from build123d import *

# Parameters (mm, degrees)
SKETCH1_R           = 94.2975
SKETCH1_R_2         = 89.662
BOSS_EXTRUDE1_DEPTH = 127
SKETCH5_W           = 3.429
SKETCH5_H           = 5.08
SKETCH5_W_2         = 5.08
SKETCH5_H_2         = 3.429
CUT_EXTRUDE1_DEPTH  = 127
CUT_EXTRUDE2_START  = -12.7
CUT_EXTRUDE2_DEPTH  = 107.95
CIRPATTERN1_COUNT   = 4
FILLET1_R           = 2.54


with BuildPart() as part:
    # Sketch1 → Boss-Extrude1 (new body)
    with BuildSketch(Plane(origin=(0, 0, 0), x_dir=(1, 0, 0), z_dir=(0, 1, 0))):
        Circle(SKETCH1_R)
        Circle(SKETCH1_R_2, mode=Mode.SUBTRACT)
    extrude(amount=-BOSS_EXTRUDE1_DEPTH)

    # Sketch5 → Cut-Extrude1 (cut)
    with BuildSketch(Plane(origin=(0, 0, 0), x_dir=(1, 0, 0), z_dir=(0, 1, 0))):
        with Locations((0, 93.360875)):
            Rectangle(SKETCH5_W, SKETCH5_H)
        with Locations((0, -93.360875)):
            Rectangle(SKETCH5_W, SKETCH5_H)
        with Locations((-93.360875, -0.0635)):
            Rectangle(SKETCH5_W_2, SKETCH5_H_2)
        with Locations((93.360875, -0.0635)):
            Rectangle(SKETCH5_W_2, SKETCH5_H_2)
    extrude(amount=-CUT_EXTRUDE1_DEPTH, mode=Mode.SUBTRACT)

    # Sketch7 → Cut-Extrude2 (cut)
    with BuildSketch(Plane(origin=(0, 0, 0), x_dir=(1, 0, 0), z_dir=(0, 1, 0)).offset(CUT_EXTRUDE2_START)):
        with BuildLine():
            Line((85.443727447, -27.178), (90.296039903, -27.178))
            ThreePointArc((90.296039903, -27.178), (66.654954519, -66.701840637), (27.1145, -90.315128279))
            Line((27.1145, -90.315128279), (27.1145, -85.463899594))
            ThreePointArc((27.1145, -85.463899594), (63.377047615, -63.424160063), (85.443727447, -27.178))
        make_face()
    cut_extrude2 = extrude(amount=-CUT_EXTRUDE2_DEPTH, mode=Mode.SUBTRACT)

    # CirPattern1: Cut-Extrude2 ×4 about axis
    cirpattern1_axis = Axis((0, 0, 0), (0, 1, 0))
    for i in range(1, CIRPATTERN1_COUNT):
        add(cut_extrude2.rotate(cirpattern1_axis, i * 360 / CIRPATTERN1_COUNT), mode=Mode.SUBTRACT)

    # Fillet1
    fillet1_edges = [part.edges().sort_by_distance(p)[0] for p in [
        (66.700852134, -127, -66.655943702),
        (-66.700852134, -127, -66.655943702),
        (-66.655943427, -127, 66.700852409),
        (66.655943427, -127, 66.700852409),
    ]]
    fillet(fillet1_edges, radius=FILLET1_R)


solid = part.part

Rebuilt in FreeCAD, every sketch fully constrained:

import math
import FreeCAD as App
import Part
import Sketcher
from FreeCAD import Vector
Q = App.Units.Quantity


def edges_at(feature, points):
    """Names of the edges that pass closest to the given points."""
    edges = feature.Shape.Edges
    near = lambda p: min(range(len(edges)), key=lambda i: edges[i].distToShape(Part.Vertex(*p))[0])
    return sorted({f"Edge{near(p) + 1}" for p in points})

doc = App.newDocument("Part")
params = doc.addObject("Spreadsheet::Sheet", "Params")
for row, (alias, value) in enumerate([
    ("sketch1_diameter", "7.06 in"),
    ("sketch1_diameter2", "7.425 in"),
    ("pad1_length", "5 in"),
    ("sketch2_width", "0.2 in"),
    ("sketch2_width2", "0.135 in"),
    ("pocket1_length", "5 in"),
    ("sketch3_radius", "3.53 in"),
    ("pocket2_length", "4.25 in"),
    ("fillet_radius", "0.1 in"),
], start=1):
    params.set(f"A{row}", alias)
    params.set(f"B{row}", "=" + value)
    params.setAlias(f"B{row}", alias)

body = doc.addObject("PartDesign::Body", "Body")

# Sketch on XZ plane
sketch1 = doc.addObject("Sketcher::SketchObject", "Sketch")
body.addObject(sketch1)
sketch1.AttachmentSupport = (doc.XZ_Plane, [""])
sketch1.MapMode = "FlatFace"
sketch1.addGeometry([
    Part.Circle(Vector(0, 0, 0), Vector(0, 0, 1), 94),
    Part.Circle(Vector(0, 0, 0), Vector(0, 0, 1), 90),
], False)
sketch1.addConstraint([
    Sketcher.Constraint("Coincident", 0, 3, -1, 1),
    Sketcher.Constraint("Coincident", 1, 3, -1, 1),
    Sketcher.Constraint("Diameter", 1, Q("7.06 in")),
    Sketcher.Constraint("Diameter", 0, Q("7.425 in")),
])
sketch1.setExpression("Constraints[2]", "Params.sketch1_diameter")
sketch1.setExpression("Constraints[3]", "Params.sketch1_diameter2")
pad1 = doc.addObject("PartDesign::Pad", "Pad")
body.addObject(pad1)
pad1.Profile = sketch1
pad1.setExpression("Length", "Params.pad1_length")

# Sketch on XZ plane
sketch2 = doc.addObject("Sketcher::SketchObject", "Sketch001")
body.addObject(sketch2)
sketch2.AttachmentSupport = (doc.XZ_Plane, [""])
sketch2.MapMode = "FlatFace"
sketch2.addGeometry([
    Part.LineSegment(Vector(-1.7, -95.9, 0), Vector(-1.7, -90.8, 0)),  # 0
    Part.LineSegment(Vector(-1.7, -90.8, 0), Vector(1.7, -90.8, 0)),  # 1
    Part.LineSegment(Vector(1.7, -90.8, 0), Vector(1.7, -95.9, 0)),  # 2
    Part.LineSegment(Vector(1.7, -95.9, 0), Vector(-1.7, -95.9, 0)),  # 3
    Part.LineSegment(Vector(-1.7, 90.8, 0), Vector(-1.7, 95.9, 0)),  # 4
    Part.LineSegment(Vector(-1.7, 95.9, 0), Vector(1.7, 95.9, 0)),  # 5
    Part.LineSegment(Vector(1.7, 95.9, 0), Vector(1.7, 90.8, 0)),  # 6
    Part.LineSegment(Vector(1.7, 90.8, 0), Vector(-1.7, 90.8, 0)),  # 7
    Part.LineSegment(Vector(-95.9, -1.7, 0), Vector(-95.9, 1.8, 0)),  # 8
    Part.LineSegment(Vector(-95.9, 1.8, 0), Vector(-90.8, 1.8, 0)),  # 9
    Part.LineSegment(Vector(-90.8, 1.8, 0), Vector(-90.8, -1.7, 0)),  # 10
    Part.LineSegment(Vector(-90.8, -1.7, 0), Vector(-95.9, -1.7, 0)),  # 11
    Part.LineSegment(Vector(90.8, -1.7, 0), Vector(90.8, 1.8, 0)),  # 12
    Part.LineSegment(Vector(90.8, 1.8, 0), Vector(95.9, 1.8, 0)),  # 13
    Part.LineSegment(Vector(95.9, 1.8, 0), Vector(95.9, -1.7, 0)),  # 14
    Part.LineSegment(Vector(95.9, -1.7, 0), Vector(90.8, -1.7, 0)),  # 15
], False)
sketch2.addConstraint([
    Sketcher.Constraint("Coincident", 0, 2, 1, 1),
    Sketcher.Constraint("Coincident", 1, 2, 2, 1),
    Sketcher.Constraint("Coincident", 2, 2, 3, 1),
    Sketcher.Constraint("Coincident", 3, 2, 0, 1),
    Sketcher.Constraint("Coincident", 4, 2, 5, 1),
    Sketcher.Constraint("Coincident", 5, 2, 6, 1),
    Sketcher.Constraint("Coincident", 6, 2, 7, 1),
    Sketcher.Constraint("Coincident", 7, 2, 4, 1),
    Sketcher.Constraint("Coincident", 8, 2, 9, 1),
    Sketcher.Constraint("Coincident", 9, 2, 10, 1),
    Sketcher.Constraint("Coincident", 10, 2, 11, 1),
    Sketcher.Constraint("Coincident", 11, 2, 8, 1),
    Sketcher.Constraint("Coincident", 12, 2, 13, 1),
    Sketcher.Constraint("Coincident", 13, 2, 14, 1),
    Sketcher.Constraint("Coincident", 14, 2, 15, 1),
    Sketcher.Constraint("Coincident", 15, 2, 12, 1),
    Sketcher.Constraint("Vertical", 0),
    Sketcher.Constraint("Horizontal", 1),
    Sketcher.Constraint("Vertical", 2),
    Sketcher.Constraint("Horizontal", 3),
    Sketcher.Constraint("Vertical", 4),
    Sketcher.Constraint("Horizontal", 5),
    Sketcher.Constraint("Vertical", 6),
    Sketcher.Constraint("Horizontal", 7),
    Sketcher.Constraint("Vertical", 8),
    Sketcher.Constraint("Horizontal", 9),
    Sketcher.Constraint("Vertical", 10),
    Sketcher.Constraint("Horizontal", 11),
    Sketcher.Constraint("Vertical", 12),
    Sketcher.Constraint("Horizontal", 13),
    Sketcher.Constraint("Vertical", 14),
    Sketcher.Constraint("Horizontal", 15),
    Sketcher.Constraint("Symmetric", 2, 2, 4, 2, -1, 1),
    Sketcher.Constraint("Symmetric", 0, 2, 6, 2, -1, 1),
    Sketcher.Constraint("Symmetric", 9, 2, 12, 2, -2),
    Sketcher.Constraint("Symmetric", 11, 2, 14, 2, -2),
    Sketcher.Constraint("Vertical", 3, 2, 4, 2),
    Sketcher.Constraint("Equal", 15, 0),
    Sketcher.Constraint("Equal", 7, 8),
    Sketcher.Constraint("DistanceX", 9, 1, 9, 2, Q("0.2 in")),
    Sketcher.Constraint("DistanceX", 1, 1, 1, 2, Q("0.135 in")),
    Sketcher.Constraint("DistanceY", -1, 1, 8, 2, Q("0.07 in")),
    Sketcher.Constraint("DistanceY", 10, 2, 7, 2, Q("3.640625 in")),
    Sketcher.Constraint("DistanceX", 8, 2, -1, 1, 95.900875),
])
sketch2.setExpression("Constraints[39]", "Params.sketch2_width")
sketch2.setExpression("Constraints[40]", "Params.sketch2_width2")
pocket1 = doc.addObject("PartDesign::Pocket", "Pocket")
body.addObject(pocket1)
pocket1.Profile = sketch2
pocket1.setExpression("Length", "Params.pocket1_length")
pocket1.Reversed = True

# Sketch on XZ plane
sketch3 = doc.addObject("Sketcher::SketchObject", "Sketch002")
body.addObject(sketch3)
sketch3.AttachmentSupport = (doc.XZ_Plane, [""])
sketch3.MapMode = "FlatFace"
sketch3.AttachmentOffset = App.Placement(Vector(0, 0, 0.5 * 25.4), App.Rotation())
sketch3.addGeometry([
    Part.LineSegment(Vector(90.3, 27.2, 0), Vector(85.4, 27.2, 0)),
    Part.ArcOfCircle(Part.Circle(Vector(0, 0, 0), Vector(0, 0, 1), 89.7), math.radians(18), math.radians(72)),
    Part.LineSegment(Vector(27.1, 85.5, 0), Vector(27.1, 90.3, 0)),
    Part.ArcOfCircle(Part.Circle(Vector(0, 0, 0), Vector(0, 0, 1), 94.3), math.radians(17), math.radians(73)),
], False)
sketch3.addConstraint([
    Sketcher.Constraint("Coincident", 0, 2, 1, 1),
    Sketcher.Constraint("Coincident", 1, 2, 2, 1),
    Sketcher.Constraint("Coincident", 2, 2, 3, 2),
    Sketcher.Constraint("Coincident", 3, 1, 0, 1),
    Sketcher.Constraint("Horizontal", 0),
    Sketcher.Constraint("Vertical", 2),
    Sketcher.Constraint("Coincident", 1, 3, -1, 1),
    Sketcher.Constraint("Coincident", 3, 3, -1, 1),
    Sketcher.Constraint("Radius", 1, Q("3.53 in")),
    Sketcher.Constraint("Radius", 3, Q("3.7125 in")),
    Sketcher.Constraint("DistanceY", -1, 1, 0, 2, Q("1.07 in")),
    Sketcher.Constraint("DistanceX", -1, 1, 1, 2, Q("1.0675 in")),
])
sketch3.setExpression("Constraints[8]", "Params.sketch3_radius")
pocket2 = doc.addObject("PartDesign::Pocket", "Pocket001")
body.addObject(pocket2)
pocket2.Profile = sketch3
pocket2.setExpression("Length", "Params.pocket2_length")
pocket2.Reversed = True
doc.recompute()

polarpattern = doc.addObject("PartDesign::PolarPattern", "PolarPattern")
body.addObject(polarpattern)
polarpattern.Originals = [pocket2]
polarpattern.Axis = (doc.Y_Axis, [""])
polarpattern.Angle = 360
polarpattern.Occurrences = 4
body.Tip = polarpattern
doc.recompute()

fillet = doc.addObject("PartDesign::Fillet", "Fillet")
body.addObject(fillet)
fillet.Base = (polarpattern, edges_at(polarpattern, [
    (66.701, -127, -66.656),
    (-66.701, -127, -66.656),
    (-66.656, -127, 66.701),
    (66.656, -127, 66.701),
]))
fillet.setExpression("Radius", "Params.fillet_radius")

doc.recompute()
